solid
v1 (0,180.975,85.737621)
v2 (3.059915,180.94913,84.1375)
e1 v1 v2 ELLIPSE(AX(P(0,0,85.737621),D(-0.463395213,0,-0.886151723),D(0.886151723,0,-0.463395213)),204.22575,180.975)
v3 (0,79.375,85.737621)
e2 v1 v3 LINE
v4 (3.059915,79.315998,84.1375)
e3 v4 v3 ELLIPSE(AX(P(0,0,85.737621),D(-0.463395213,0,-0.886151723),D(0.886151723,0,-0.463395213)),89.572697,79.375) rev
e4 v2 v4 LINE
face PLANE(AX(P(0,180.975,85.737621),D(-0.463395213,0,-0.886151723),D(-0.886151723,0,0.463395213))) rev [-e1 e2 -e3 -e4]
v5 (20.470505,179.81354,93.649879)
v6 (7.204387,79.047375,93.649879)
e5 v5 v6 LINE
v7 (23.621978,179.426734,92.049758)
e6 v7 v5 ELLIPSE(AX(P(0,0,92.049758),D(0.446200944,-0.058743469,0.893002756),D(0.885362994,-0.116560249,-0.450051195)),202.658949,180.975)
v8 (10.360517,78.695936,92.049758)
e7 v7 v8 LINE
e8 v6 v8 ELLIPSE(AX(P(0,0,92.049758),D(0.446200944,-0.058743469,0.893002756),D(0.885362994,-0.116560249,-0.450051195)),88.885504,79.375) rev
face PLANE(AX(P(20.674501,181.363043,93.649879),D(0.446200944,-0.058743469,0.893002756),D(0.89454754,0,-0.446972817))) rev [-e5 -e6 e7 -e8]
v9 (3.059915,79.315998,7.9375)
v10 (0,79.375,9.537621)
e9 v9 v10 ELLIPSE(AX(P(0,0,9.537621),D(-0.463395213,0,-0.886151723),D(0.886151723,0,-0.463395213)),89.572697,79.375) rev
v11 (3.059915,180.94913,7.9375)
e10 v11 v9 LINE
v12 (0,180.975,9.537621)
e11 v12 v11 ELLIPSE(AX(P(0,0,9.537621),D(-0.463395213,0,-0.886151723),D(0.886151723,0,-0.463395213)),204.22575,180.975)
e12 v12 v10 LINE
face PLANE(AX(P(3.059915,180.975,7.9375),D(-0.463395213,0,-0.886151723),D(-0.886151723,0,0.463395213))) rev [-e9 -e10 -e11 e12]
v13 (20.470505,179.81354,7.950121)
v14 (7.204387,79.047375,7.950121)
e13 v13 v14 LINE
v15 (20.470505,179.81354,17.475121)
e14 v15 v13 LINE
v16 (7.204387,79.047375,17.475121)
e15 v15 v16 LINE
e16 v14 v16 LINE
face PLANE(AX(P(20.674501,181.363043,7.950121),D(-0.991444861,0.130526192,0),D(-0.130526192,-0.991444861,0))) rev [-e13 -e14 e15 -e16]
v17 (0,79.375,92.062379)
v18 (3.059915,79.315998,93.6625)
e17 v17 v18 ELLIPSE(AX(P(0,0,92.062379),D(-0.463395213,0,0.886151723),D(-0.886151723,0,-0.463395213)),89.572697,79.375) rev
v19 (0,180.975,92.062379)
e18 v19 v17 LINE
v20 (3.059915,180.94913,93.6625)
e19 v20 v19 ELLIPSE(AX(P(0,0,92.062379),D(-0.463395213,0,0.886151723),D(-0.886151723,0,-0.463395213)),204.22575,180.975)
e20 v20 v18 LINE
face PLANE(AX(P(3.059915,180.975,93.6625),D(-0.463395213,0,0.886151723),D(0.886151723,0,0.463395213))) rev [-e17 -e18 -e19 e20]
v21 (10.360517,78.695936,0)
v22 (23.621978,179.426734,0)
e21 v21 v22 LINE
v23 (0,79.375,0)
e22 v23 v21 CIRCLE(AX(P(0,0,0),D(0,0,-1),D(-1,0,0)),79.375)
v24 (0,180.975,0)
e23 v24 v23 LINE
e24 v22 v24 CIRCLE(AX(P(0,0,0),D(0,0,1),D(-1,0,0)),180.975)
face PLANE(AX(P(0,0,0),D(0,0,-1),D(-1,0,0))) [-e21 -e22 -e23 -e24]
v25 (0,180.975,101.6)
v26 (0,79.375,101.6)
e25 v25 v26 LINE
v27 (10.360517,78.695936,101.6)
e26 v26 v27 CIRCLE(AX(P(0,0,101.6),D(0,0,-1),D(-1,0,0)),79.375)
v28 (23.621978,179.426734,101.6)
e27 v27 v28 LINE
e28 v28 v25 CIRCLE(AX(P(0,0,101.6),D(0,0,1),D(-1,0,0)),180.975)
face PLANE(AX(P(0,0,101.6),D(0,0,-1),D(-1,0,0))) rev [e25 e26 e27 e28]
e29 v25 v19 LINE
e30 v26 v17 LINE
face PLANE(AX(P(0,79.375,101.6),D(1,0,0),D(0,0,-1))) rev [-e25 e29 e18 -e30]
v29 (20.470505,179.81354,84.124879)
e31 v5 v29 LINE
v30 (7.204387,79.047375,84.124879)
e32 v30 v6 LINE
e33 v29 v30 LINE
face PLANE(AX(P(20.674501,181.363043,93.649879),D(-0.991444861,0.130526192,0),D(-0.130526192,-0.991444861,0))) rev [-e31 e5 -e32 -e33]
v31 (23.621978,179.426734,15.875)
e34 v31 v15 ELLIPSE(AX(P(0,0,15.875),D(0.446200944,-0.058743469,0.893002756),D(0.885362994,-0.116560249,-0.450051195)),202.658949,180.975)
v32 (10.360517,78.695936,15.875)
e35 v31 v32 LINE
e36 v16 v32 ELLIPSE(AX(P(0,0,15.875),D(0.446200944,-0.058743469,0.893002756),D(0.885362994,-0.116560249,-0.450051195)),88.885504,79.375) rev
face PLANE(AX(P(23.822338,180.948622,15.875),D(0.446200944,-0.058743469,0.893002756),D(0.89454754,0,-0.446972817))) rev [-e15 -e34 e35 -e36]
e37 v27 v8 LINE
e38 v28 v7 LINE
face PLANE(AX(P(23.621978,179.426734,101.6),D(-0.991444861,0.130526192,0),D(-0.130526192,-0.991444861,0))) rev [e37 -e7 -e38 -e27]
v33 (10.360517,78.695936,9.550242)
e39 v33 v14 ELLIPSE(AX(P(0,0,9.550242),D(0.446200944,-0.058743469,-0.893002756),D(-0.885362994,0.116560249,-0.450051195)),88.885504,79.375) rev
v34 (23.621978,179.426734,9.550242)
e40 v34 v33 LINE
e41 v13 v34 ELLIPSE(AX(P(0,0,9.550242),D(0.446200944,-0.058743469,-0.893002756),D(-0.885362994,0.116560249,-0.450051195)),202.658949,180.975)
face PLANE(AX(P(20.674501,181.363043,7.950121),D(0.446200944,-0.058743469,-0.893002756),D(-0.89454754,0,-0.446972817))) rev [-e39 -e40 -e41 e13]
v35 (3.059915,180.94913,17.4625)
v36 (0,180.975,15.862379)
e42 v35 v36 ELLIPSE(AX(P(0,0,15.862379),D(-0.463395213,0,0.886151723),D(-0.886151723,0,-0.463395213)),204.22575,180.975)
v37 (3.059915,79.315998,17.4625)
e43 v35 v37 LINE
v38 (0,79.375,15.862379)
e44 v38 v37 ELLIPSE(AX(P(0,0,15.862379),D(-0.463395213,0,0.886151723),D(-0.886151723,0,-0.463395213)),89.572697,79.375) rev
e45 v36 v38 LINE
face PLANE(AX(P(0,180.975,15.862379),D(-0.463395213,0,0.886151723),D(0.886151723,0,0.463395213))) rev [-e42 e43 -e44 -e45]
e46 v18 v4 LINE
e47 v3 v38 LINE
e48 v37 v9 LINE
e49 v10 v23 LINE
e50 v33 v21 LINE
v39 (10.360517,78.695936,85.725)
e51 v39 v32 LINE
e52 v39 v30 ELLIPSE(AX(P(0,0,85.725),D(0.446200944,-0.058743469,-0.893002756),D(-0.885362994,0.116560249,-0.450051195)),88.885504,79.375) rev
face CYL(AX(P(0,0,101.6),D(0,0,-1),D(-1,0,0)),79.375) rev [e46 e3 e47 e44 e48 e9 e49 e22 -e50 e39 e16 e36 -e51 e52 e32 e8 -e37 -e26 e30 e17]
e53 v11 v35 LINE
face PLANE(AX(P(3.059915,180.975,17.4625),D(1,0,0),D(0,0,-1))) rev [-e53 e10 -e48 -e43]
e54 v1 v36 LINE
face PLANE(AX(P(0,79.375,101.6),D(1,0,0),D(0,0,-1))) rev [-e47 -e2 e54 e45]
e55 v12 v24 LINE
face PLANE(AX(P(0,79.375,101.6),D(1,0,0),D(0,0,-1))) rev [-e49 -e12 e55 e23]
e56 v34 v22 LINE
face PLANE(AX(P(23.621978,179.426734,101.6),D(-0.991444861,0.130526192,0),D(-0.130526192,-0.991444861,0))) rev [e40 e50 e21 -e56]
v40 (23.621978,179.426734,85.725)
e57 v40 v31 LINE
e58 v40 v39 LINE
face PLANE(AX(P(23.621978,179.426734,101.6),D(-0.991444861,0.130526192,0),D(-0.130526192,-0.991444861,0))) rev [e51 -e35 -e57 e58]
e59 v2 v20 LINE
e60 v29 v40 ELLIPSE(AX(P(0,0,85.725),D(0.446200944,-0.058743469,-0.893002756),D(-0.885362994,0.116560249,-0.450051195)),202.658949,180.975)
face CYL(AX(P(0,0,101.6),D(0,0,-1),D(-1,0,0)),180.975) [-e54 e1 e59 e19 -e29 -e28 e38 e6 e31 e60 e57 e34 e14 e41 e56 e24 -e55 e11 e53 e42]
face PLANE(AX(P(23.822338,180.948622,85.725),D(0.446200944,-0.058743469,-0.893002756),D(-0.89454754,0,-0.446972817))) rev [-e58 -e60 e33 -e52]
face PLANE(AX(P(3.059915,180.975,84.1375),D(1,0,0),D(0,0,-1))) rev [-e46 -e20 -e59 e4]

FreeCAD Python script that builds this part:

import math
import FreeCAD as App
import Part
import Sketcher
Q = App.Units.Quantity

doc = App.newDocument("Part")
body = doc.addObject("PartDesign::Body", "Body")

# Sketch on XY plane
sketch1 = body.newObject("Sketcher::SketchObject", "Sketch")
sketch1.AttachmentSupport = (doc.getObject("XY_Plane"), [""])
sketch1.MapMode = "FlatFace"
sketch1.addGeometry(Part.LineSegment(App.Vector(0, 181, 0), App.Vector(0, 79, 0)), False)
sketch1.addGeometry(Part.ArcOfCircle(Part.Circle(App.Vector(0, 0, 0), App.Vector(0, 0, 1), 79), math.radians(82.5), math.radians(90)), False)
sketch1.addGeometry(Part.LineSegment(App.Vector(10, 79, 0), App.Vector(24, 179, 0)), False)
sketch1.addGeometry(Part.ArcOfCircle(Part.Circle(App.Vector(0, 0, 0), App.Vector(0, 0, 1), 181), math.radians(82.5), math.radians(90)), False)
sketch1.addConstraint(Sketcher.Constraint("Coincident", 0, 2, 1, 2))
sketch1.addConstraint(Sketcher.Constraint("Coincident", 1, 1, 2, 1))
sketch1.addConstraint(Sketcher.Constraint("Coincident", 2, 2, 3, 1))
sketch1.addConstraint(Sketcher.Constraint("Coincident", 3, 2, 0, 1))
sketch1.addConstraint(Sketcher.Constraint("Vertical", 0))
sketch1.addConstraint(Sketcher.Constraint("Coincident", 1, 3, -1, 1))
sketch1.addConstraint(Sketcher.Constraint("Coincident", 3, 3, -1, 1))
sketch1.addConstraint(Sketcher.Constraint("PointOnObject", 0, 2, -2))
sketch1.addConstraint(Sketcher.Constraint("DistanceY", 0, 2, 0, 1, Q("4 in")))
sketch1.addConstraint(Sketcher.Constraint("Radius", 1, Q("3.125 in")))
sketch1.addConstraint(Sketcher.Constraint("Angle", 2, Q("82.5 deg")))
sketch1.addConstraint(Sketcher.Constraint("DistanceX", -1, 1, 1, 1, 10.360517))
pad1 = body.newObject("PartDesign::Pad", "Pad")
pad1.Profile = sketch1
pad1.Length = Q("4 in")

# Sketch on an angled plane
sketch2 = body.newObject("Sketcher::SketchObject", "Sketch001")
sketch2.Placement = App.Placement(App.Vector(10.360517, 78.695936, 0), App.Rotation(App.Vector(0, 0, -1), App.Vector(0.991444861, -0.130526192, 0), App.Vector(-0.130526192, -0.991444861, 0), "ZXY"))
sketch2.addGeometry(Part.LineSegment(App.Vector(-93.6, -3.2, 0), App.Vector(-84.1, -3.2, 0)), False)
sketch2.addGeometry(Part.LineSegment(App.Vector(-84.1, -3.2, 0), App.Vector(-85.7, 0, 0)), False)
sketch2.addGeometry(Part.LineSegment(App.Vector(-85.7, 0, 0), App.Vector(-92, 0, 0)), False)
sketch2.addGeometry(Part.LineSegment(App.Vector(-92, 0, 0), App.Vector(-93.6, -3.2, 0)), False)
sketch2.addGeometry(Part.LineSegment(App.Vector(-15.9, 0, 0), App.Vector(-17.5, -3.2, 0)), False)
sketch2.addGeometry(Part.LineSegment(App.Vector(-17.5, -3.2, 0), App.Vector(-8, -3.2, 0)), False)
sketch2.addGeometry(Part.LineSegment(App.Vector(-8, -3.2, 0), App.Vector(-9.6, 0, 0)), False)
sketch2.addGeometry(Part.LineSegment(App.Vector(-9.6, 0, 0), App.Vector(-15.9, 0, 0)), False)
sketch2.addConstraint(Sketcher.Constraint("Coincident", 0, 2, 1, 1))
sketch2.addConstraint(Sketcher.Constraint("Coincident", 1, 2, 2, 1))
sketch2.addConstraint(Sketcher.Constraint("Coincident", 2, 2, 3, 1))
sketch2.addConstraint(Sketcher.Constraint("Coincident", 3, 2, 0, 1))
sketch2.addConstraint(Sketcher.Constraint("Coincident", 4, 2, 5, 1))
sketch2.addConstraint(Sketcher.Constraint("Coincident", 5, 2, 6, 1))
sketch2.addConstraint(Sketcher.Constraint("Coincident", 6, 2, 7, 1))
sketch2.addConstraint(Sketcher.Constraint("Coincident", 7, 2, 4, 1))
sketch2.addConstraint(Sketcher.Constraint("Horizontal", 0))
sketch2.addConstraint(Sketcher.Constraint("Horizontal", 2))
sketch2.addConstraint(Sketcher.Constraint("Horizontal", 5))
sketch2.addConstraint(Sketcher.Constraint("Horizontal", 7))
sketch2.addConstraint(Sketcher.Constraint("PointOnObject", 1, 2, -1))
sketch2.addConstraint(Sketcher.Constraint("PointOnObject", 6, 2, -1))
sketch2.addConstraint(Sketcher.Constraint("Parallel", 3, 4))
sketch2.addConstraint(Sketcher.Constraint("Parallel", 1, 6))
sketch2.addConstraint(Sketcher.Constraint("Horizontal", 3, 2, 4, 2))
sketch2.addConstraint(Sketcher.Constraint("Equal", 0, 5))
sketch2.addConstraint(Sketcher.Constraint("Equal", 1, 3))
sketch2.addConstraint(Sketcher.Constraint("DistanceX", 0, 1, 0, 2, Q("0.375 in")))
sketch2.addConstraint(Sketcher.Constraint("DistanceX", 1, 2, 7, 2, Q("2.75 in")))
sketch2.addConstraint(Sketcher.Constraint("DistanceY", 0, 2, -1, 1, Q("0.125 in")))
sketch2.addConstraint(Sketcher.Constraint("DistanceX", 1, 2, -1, 1, Q("3.375 in")))
sketch2.addConstraint(Sketcher.Constraint("Distance", 1, 3.55542))
pocket1 = body.newObject("PartDesign::Pocket", "Pocket")
pocket1.Profile = sketch2
pocket1.Type = "ThroughAll"
pocket1.Midplane = True

# Sketch on XZ plane
sketch3 = body.newObject("Sketcher::SketchObject", "Sketch002")
sketch3.AttachmentSupport = (doc.getObject("XZ_Plane"), [""])
sketch3.MapMode = "FlatFace"
sketch3.AttachmentOffset = App.Placement(App.Vector(0, 0, -3.125 * 25.4), App.Rotation())
sketch3.addGeometry(Part.LineSegment(App.Vector(3.1, 84.1, 0), App.Vector(3.1, 93.7, 0)), False)
sketch3.addGeometry(Part.LineSegment(App.Vector(3.1, 93.7, 0), App.Vector(0, 92.1, 0)), False)
sketch3.addGeometry(Part.LineSegment(App.Vector(0, 92.1, 0), App.Vector(0, 85.7, 0)), False)
sketch3.addGeometry(Part.LineSegment(App.Vector(0, 85.7, 0), App.Vector(3.1, 84.1, 0)), False)
sketch3.addGeometry(Part.LineSegment(App.Vector(3.1, 17.5, 0), App.Vector(0, 15.9, 0)), False)
sketch3.addGeometry(Part.LineSegment(App.Vector(0, 15.9, 0), App.Vector(0, 9.5, 0)), False)
sketch3.addGeometry(Part.LineSegment(App.Vector(0, 9.5, 0), App.Vector(3.1, 7.9, 0)), False)
sketch3.addGeometry(Part.LineSegment(App.Vector(3.1, 7.9, 0), App.Vector(3.1, 17.5, 0)), False)
sketch3.addConstraint(Sketcher.Constraint("Coincident", 0, 2, 1, 1))
sketch3.addConstraint(Sketcher.Constraint("Coincident", 1, 2, 2, 1))
sketch3.addConstraint(Sketcher.Constraint("Coincident", 2, 2, 3, 1))
sketch3.addConstraint(Sketcher.Constraint("Coincident", 3, 2, 0, 1))
sketch3.addConstraint(Sketcher.Constraint("Coincident", 4, 2, 5, 1))
sketch3.addConstraint(Sketcher.Constraint("Coincident", 5, 2, 6, 1))
sketch3.addConstraint(Sketcher.Constraint("Coincident", 6, 2, 7, 1))
sketch3.addConstraint(Sketcher.Constraint("Coincident", 7, 2, 4, 1))
sketch3.addConstraint(Sketcher.Constraint("Vertical", 0))
sketch3.addConstraint(Sketcher.Constraint("Vertical", 2))
sketch3.addConstraint(Sketcher.Constraint("Vertical", 5))
sketch3.addConstraint(Sketcher.Constraint("Vertical", 7))
sketch3.addConstraint(Sketcher.Constraint("PointOnObject", 1, 2, -2))
sketch3.addConstraint(Sketcher.Constraint("PointOnObject", 4, 2, -2))
sketch3.addConstraint(Sketcher.Constraint("Parallel", 1, 4))
sketch3.addConstraint(Sketcher.Constraint("Parallel", 3, 6))
sketch3.addConstraint(Sketcher.Constraint("Vertical", 3, 2, 6, 2))
sketch3.addConstraint(Sketcher.Constraint("Equal", 2, 5))
sketch3.addConstraint(Sketcher.Constraint("Equal", 1, 3))
sketch3.addConstraint(Sketcher.Constraint("DistanceY", 4, 2, 1, 2, Q("3 in")))
sketch3.addConstraint(Sketcher.Constraint("DistanceY", 0, 1, 0, 2, Q("0.375 in")))
sketch3.addConstraint(Sketcher.Constraint("DistanceY", -1, 1, 0, 2, Q("3.6875 in")))
sketch3.addConstraint(Sketcher.Constraint("DistanceY", 2, 2, 2, 1, 6.324758))
sketch3.addConstraint(Sketcher.Constraint("Distance", 1, 3.453038))
pocket2 = body.newObject("PartDesign::Pocket", "Pocket001")
pocket2.Profile = sketch3
pocket2.Type = "ThroughAll"
pocket2.Midplane = True

doc.recompute()
